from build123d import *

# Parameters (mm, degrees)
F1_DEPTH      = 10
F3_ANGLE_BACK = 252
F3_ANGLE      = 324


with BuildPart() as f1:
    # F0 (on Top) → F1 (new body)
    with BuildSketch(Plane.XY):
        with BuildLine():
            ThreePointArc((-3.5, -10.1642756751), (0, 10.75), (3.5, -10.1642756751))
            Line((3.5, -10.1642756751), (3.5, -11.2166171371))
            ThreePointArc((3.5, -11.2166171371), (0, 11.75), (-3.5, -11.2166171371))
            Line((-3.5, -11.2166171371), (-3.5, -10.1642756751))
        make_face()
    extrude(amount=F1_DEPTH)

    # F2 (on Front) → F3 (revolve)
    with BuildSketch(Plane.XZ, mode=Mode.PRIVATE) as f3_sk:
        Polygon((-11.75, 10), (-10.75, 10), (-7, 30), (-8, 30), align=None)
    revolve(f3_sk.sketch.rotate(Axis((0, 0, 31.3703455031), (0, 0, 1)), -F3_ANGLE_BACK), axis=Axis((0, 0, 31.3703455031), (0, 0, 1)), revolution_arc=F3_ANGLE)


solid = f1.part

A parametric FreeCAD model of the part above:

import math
import FreeCAD as App
import Part
import Sketcher
Q = App.Units.Quantity

doc = App.newDocument("Part")
body = doc.addObject("PartDesign::Body", "Body")

# Sketch on XY plane
sketch1 = body.newObject("Sketcher::SketchObject", "Sketch")
sketch1.AttachmentSupport = (doc.getObject("XY_Plane"), [""])
sketch1.MapMode = "FlatFace"
sketch1.addGeometry([
    Part.ArcOfCircle(Part.Circle(App.Vector(0, 0, 0), App.Vector(0, 0, 1), 10.8), math.radians(-71), math.radians(251)),
    Part.LineSegment(App.Vector(3.5, -10.2, 0), App.Vector(3.5, -11.2, 0)),
    Part.ArcOfCircle(Part.Circle(App.Vector(0, 0, 0), App.Vector(0, 0, 1), 11.8), math.radians(-73), math.radians(253)),
    Part.LineSegment(App.Vector(-3.5, -11.2, 0), App.Vector(-3.5, -10.2, 0)),
], False)
sketch1.addConstraint([
    Sketcher.Constraint("Coincident", 0, 1, 1, 1),
    Sketcher.Constraint("Coincident", 1, 2, 2, 1),
    Sketcher.Constraint("Coincident", 2, 2, 3, 1),
    Sketcher.Constraint("Coincident", 3, 2, 0, 2),
    Sketcher.Constraint("Vertical", 1),
    Sketcher.Constraint("Vertical", 3),
    Sketcher.Constraint("Coincident", 0, 3, -1, 1),
    Sketcher.Constraint("Coincident", 2, 3, -1, 1),
    Sketcher.Constraint("Horizontal", 1, 2, 2, 2),
    Sketcher.Constraint("Radius", 0, Q("10.75 mm")),
    Sketcher.Constraint("Radius", 2, Q("11.75 mm")),
    Sketcher.Constraint("DistanceX", 2, 2, 1, 2, Q("7 mm")),
])
pad1 = body.newObject("PartDesign::Pad", "Pad")
pad1.Profile = sketch1
pad1.Length = 10

# Sketch on an angled plane
sketch2 = body.newObject("Sketcher::SketchObject", "Sketch001")
sketch2.Placement = App.Placement(App.Vector(0, 0, 0), App.Rotation(App.Vector(-0.309016994, 0.951056516, 0), App.Vector(0, 0, 0.999999999), App.Vector(0.951056516, 0.309016994, 0), "ZXY"))
sketch2.addGeometry([
    Part.LineSegment(App.Vector(-11.7, 10, 0), App.Vector(-10.7, 10, 0)),
    Part.LineSegment(App.Vector(-10.7, 10, 0), App.Vector(-7, 30, 0)),
    Part.LineSegment(App.Vector(-7, 30, 0), App.Vector(-8, 30, 0)),
    Part.LineSegment(App.Vector(-8, 30, 0), App.Vector(-11.7, 10, 0)),
], False)
sketch2.addConstraint([
    Sketcher.Constraint("Coincident", 0, 2, 1, 1),
    Sketcher.Constraint("Coincident", 1, 2, 2, 1),
    Sketcher.Constraint("Coincident", 2, 2, 3, 1),
    Sketcher.Constraint("Coincident", 3, 2, 0, 1),
    Sketcher.Constraint("Horizontal", 0),
    Sketcher.Constraint("Horizontal", 2),
    Sketcher.Constraint("Parallel", 1, 3),
    Sketcher.Constraint("DistanceX", 0, 1, 0, 2, Q("1 mm")),
    Sketcher.Constraint("DistanceY", -1, 1, 0, 2, Q("10 mm")),
    Sketcher.Constraint("DistanceX", 1, 2, -1, 1, Q("7 mm")),
    Sketcher.Constraint("DistanceY", -1, 1, 1, 2, Q("30 mm")),
    Sketcher.Constraint("DistanceX", 0, 2, -1, 1, Q("10.75 mm")),
])
revolution = body.newObject("PartDesign::Revolution", "Revolution")
revolution.Profile = sketch2
revolution.ReferenceAxis = (sketch2, ["V_Axis"])
revolution.Angle = 324

doc.recompute()
